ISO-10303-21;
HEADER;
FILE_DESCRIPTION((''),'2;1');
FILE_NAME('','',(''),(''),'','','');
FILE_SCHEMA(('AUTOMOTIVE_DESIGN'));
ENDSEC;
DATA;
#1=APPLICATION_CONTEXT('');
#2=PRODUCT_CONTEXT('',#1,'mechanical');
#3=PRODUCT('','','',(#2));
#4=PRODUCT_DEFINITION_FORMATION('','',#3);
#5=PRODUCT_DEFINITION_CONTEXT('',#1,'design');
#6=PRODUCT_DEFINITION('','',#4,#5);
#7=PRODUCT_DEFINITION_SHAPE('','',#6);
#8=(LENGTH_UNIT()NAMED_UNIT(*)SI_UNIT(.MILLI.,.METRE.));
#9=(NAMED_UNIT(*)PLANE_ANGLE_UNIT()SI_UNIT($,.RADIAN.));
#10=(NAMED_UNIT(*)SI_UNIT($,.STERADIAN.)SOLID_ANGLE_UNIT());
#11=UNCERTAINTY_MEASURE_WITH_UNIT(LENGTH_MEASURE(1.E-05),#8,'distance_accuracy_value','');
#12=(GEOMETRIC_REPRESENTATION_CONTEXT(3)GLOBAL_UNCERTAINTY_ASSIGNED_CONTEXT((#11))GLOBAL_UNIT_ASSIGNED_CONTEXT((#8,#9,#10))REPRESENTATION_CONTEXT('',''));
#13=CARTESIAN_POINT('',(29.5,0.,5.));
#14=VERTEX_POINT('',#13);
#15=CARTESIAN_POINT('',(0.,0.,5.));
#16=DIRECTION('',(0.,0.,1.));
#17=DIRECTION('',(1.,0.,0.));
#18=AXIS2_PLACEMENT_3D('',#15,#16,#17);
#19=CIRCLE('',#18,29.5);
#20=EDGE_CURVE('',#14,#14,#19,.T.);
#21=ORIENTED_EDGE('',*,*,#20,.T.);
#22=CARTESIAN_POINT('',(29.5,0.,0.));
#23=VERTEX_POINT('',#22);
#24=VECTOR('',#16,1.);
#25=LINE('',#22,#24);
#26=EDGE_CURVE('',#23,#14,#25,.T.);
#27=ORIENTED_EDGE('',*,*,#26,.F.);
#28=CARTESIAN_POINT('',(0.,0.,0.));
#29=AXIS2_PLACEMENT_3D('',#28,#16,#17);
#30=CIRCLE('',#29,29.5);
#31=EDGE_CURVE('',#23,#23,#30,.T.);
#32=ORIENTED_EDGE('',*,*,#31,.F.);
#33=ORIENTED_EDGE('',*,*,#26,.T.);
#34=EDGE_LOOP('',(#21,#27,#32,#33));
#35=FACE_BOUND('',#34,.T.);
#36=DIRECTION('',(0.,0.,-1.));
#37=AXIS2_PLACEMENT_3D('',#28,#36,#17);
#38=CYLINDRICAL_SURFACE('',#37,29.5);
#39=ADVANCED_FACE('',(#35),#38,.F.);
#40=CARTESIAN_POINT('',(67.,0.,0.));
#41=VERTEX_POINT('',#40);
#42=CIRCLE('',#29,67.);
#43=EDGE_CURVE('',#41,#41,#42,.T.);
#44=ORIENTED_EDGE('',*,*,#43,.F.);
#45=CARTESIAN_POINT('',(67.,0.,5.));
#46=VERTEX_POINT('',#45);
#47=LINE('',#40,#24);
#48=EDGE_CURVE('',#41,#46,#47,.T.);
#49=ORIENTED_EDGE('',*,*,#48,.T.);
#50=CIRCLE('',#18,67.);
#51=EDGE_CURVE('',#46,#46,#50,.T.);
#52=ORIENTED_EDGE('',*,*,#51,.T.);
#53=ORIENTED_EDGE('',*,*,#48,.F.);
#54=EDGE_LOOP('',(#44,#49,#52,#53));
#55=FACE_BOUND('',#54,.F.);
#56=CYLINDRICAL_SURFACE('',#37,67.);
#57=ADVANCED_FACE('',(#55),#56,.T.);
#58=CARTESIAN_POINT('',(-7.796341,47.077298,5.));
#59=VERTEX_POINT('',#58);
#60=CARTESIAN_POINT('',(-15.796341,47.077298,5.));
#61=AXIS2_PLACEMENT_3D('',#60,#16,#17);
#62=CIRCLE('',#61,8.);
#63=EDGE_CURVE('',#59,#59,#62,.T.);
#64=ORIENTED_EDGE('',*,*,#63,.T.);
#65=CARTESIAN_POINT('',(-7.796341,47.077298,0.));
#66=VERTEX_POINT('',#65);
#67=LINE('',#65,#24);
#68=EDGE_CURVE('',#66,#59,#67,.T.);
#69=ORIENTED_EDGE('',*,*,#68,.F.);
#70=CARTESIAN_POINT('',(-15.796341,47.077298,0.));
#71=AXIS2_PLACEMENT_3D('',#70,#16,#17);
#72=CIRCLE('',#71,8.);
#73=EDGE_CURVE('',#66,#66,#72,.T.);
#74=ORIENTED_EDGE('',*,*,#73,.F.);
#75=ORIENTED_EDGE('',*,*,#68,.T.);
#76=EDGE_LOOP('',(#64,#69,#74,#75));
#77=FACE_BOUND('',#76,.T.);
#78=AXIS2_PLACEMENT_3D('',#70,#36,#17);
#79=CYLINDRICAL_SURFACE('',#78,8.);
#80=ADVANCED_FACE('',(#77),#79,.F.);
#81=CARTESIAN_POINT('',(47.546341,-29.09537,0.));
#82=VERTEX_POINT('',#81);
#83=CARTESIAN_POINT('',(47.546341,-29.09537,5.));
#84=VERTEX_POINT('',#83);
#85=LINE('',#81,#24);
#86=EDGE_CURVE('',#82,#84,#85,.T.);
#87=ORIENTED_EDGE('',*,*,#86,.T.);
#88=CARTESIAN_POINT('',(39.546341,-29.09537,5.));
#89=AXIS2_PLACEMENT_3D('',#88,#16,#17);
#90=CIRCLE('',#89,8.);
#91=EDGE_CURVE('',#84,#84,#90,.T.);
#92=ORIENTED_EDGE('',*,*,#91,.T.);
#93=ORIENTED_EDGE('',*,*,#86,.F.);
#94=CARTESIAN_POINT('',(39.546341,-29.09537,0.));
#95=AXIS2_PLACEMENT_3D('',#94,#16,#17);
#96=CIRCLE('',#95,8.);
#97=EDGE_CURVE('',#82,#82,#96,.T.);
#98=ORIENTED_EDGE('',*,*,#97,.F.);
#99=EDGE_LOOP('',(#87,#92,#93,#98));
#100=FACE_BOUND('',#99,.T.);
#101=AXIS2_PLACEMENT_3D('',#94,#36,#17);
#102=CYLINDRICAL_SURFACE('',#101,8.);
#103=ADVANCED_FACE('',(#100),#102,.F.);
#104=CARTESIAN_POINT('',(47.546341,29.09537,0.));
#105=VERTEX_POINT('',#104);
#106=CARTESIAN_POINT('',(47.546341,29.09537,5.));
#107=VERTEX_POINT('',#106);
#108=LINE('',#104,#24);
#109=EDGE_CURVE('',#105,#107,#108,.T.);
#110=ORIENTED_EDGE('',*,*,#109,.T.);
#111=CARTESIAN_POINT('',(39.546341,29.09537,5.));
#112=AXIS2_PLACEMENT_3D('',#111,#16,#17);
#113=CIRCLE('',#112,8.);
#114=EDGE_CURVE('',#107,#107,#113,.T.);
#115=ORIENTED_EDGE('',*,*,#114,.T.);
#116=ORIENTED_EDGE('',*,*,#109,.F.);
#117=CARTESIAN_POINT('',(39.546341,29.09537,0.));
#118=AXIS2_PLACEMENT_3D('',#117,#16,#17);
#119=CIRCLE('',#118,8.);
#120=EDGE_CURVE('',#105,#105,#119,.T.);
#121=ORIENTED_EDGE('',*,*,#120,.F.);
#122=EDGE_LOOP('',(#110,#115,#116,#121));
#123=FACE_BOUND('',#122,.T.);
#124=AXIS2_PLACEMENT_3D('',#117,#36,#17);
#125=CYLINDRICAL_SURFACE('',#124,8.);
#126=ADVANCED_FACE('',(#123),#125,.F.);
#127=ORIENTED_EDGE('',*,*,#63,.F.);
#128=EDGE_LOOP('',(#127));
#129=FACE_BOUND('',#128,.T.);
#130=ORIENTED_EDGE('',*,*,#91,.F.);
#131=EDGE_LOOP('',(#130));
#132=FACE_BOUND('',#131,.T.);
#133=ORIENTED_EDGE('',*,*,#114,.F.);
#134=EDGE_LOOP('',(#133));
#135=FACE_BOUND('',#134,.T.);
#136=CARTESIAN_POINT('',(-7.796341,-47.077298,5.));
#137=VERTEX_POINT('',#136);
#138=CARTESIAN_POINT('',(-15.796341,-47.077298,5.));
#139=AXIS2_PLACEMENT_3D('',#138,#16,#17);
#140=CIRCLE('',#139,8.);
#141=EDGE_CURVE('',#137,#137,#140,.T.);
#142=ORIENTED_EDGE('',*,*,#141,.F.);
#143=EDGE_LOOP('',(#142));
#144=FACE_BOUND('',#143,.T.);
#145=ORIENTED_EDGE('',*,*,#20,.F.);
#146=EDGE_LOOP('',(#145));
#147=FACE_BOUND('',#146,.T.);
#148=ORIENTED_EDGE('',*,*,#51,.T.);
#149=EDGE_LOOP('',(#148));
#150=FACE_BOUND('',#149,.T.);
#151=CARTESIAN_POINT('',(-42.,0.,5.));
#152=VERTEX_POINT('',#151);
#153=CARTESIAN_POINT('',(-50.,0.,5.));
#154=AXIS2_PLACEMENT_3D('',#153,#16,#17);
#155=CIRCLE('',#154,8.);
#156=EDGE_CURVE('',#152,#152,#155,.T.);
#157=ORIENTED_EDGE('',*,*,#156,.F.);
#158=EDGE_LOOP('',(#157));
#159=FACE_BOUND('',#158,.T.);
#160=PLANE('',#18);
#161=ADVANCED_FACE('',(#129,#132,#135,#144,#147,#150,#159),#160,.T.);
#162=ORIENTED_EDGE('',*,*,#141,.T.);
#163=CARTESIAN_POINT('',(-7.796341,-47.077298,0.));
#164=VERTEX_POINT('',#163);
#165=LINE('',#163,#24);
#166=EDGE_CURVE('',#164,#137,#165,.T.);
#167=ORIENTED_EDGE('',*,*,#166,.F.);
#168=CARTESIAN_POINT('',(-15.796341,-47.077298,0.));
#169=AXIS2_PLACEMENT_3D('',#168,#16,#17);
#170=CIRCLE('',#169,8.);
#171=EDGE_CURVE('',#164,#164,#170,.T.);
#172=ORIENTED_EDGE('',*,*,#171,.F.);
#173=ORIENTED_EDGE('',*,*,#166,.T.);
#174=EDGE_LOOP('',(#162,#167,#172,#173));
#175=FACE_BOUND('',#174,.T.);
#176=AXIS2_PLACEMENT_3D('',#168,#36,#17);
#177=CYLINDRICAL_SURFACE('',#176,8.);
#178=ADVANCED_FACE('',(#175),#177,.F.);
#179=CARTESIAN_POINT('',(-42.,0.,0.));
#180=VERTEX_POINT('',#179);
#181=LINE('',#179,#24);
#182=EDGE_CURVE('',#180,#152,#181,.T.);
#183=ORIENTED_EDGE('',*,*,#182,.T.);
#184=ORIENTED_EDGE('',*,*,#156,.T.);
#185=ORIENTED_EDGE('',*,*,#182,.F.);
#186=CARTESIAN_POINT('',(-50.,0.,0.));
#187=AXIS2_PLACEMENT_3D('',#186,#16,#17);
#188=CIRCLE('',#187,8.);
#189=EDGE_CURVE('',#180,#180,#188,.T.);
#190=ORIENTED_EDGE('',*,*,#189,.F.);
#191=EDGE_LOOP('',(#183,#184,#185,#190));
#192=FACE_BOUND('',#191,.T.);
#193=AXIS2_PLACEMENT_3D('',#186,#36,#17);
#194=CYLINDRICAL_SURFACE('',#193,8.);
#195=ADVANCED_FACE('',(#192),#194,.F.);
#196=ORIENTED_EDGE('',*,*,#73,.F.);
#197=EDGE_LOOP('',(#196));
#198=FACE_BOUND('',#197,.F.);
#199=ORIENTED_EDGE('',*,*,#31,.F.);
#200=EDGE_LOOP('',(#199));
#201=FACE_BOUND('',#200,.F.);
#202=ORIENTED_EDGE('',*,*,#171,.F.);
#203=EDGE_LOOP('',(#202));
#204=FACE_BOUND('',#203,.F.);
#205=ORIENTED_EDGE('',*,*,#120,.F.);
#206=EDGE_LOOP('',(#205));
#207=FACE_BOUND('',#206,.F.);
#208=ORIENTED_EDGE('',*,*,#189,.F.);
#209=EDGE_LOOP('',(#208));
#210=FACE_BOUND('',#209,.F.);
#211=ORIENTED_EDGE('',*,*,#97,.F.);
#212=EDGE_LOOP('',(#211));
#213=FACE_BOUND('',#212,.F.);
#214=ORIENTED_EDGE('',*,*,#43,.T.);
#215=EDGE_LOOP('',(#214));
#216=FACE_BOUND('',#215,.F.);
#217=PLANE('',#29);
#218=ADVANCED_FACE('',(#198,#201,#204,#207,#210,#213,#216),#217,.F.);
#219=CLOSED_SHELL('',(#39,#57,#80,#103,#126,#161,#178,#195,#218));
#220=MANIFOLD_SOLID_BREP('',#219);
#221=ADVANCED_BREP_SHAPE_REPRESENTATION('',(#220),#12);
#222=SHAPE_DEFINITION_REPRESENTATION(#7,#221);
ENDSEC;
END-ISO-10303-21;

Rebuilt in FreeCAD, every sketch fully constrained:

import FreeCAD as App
import Part
import Sketcher

V = App.Vector
Q = App.Units.Quantity

doc = App.newDocument("Part")
params = doc.addObject("Spreadsheet::Sheet", "Params")
for row, (alias, value) in enumerate([
    ("sketch1_diameter", "134 mm"),
    ("sketch1_diameter2", "16 mm"),
    ("sketch1_diameter3", "59 mm"),
    ("pad1_length", "5 mm"),
], start=1):
    params.set(f"A{row}", alias)
    params.set(f"B{row}", "=" + value)
    params.setAlias(f"B{row}", alias)

body = doc.addObject("PartDesign::Body", "Body")

# Sketch on XY plane
sketch1 = body.newObject("Sketcher::SketchObject", "Sketch")
sketch1.AttachmentSupport = (doc.getObject("XY_Plane"), [""])
sketch1.MapMode = "FlatFace"
sketch1.addGeometry(Part.Circle(V(0, 0, 0), V(0, 0, 1), 67), False)
sketch1.addGeometry(Part.Circle(V(-16, -47, 0), V(0, 0, 1), 8), False)
sketch1.addGeometry(Part.Circle(V(40, -29, 0), V(0, 0, 1), 8), False)
sketch1.addGeometry(Part.Circle(V(-50, 0, 0), V(0, 0, 1), 8), False)
sketch1.addGeometry(Part.Circle(V(-16, 47, 0), V(0, 0, 1), 8), False)
sketch1.addGeometry(Part.Circle(V(0, 0, 0), V(0, 0, 1), 30), False)
sketch1.addGeometry(Part.Circle(V(40, 29, 0), V(0, 0, 1), 8), False)
sketch1.addConstraint(Sketcher.Constraint("Coincident", 0, 3, -1, 1))
sketch1.addConstraint(Sketcher.Constraint("Coincident", 5, 3, -1, 1))
sketch1.addConstraint(Sketcher.Constraint("Equal", 1, 2))
sketch1.addConstraint(Sketcher.Constraint("Equal", 2, 3))
sketch1.addConstraint(Sketcher.Constraint("Equal", 3, 4))
sketch1.addConstraint(Sketcher.Constraint("Equal", 4, 6))
sketch1.addConstraint(Sketcher.Constraint("Symmetric", 1, 3, 4, 3, -1))
sketch1.addConstraint(Sketcher.Constraint("Symmetric", 2, 3, 6, 3, -1))
sketch1.addConstraint(Sketcher.Constraint("PointOnObject", 3, 3, -1))
sketch1.addConstraint(Sketcher.Constraint("Diameter", 0, Q("134 mm")))
sketch1.addConstraint(Sketcher.Constraint("Diameter", 1, Q("16 mm")))
sketch1.addConstraint(Sketcher.Constraint("Diameter", 5, Q("59 mm")))
sketch1.addConstraint(Sketcher.Constraint("DistanceX", 3, 3, -1, 1, Q("50 mm")))
sketch1.addConstraint(Sketcher.Constraint("DistanceX", 1, 3, -1, 1, Q("15.796341 mm")))
sketch1.addConstraint(Sketcher.Constraint("DistanceX", -1, 1, 2, 3, Q("39.546341 mm")))
sketch1.addConstraint(Sketcher.Constraint("DistanceY", 2, 3, -1, 1, Q("29.09537 mm")))
sketch1.addConstraint(Sketcher.Constraint("DistanceY", 1, 3, 2, 3, Q("17.981928 mm")))
sketch1.setExpression("Constraints[9]", "Params.sketch1_diameter")
sketch1.setExpression("Constraints[10]", "Params.sketch1_diameter2")
sketch1.setExpression("Constraints[11]", "Params.sketch1_diameter3")
pad1 = body.newObject("PartDesign::Pad", "Pad")
pad1.Profile = sketch1
pad1.setExpression("Length", "Params.pad1_length")

doc.recompute()
